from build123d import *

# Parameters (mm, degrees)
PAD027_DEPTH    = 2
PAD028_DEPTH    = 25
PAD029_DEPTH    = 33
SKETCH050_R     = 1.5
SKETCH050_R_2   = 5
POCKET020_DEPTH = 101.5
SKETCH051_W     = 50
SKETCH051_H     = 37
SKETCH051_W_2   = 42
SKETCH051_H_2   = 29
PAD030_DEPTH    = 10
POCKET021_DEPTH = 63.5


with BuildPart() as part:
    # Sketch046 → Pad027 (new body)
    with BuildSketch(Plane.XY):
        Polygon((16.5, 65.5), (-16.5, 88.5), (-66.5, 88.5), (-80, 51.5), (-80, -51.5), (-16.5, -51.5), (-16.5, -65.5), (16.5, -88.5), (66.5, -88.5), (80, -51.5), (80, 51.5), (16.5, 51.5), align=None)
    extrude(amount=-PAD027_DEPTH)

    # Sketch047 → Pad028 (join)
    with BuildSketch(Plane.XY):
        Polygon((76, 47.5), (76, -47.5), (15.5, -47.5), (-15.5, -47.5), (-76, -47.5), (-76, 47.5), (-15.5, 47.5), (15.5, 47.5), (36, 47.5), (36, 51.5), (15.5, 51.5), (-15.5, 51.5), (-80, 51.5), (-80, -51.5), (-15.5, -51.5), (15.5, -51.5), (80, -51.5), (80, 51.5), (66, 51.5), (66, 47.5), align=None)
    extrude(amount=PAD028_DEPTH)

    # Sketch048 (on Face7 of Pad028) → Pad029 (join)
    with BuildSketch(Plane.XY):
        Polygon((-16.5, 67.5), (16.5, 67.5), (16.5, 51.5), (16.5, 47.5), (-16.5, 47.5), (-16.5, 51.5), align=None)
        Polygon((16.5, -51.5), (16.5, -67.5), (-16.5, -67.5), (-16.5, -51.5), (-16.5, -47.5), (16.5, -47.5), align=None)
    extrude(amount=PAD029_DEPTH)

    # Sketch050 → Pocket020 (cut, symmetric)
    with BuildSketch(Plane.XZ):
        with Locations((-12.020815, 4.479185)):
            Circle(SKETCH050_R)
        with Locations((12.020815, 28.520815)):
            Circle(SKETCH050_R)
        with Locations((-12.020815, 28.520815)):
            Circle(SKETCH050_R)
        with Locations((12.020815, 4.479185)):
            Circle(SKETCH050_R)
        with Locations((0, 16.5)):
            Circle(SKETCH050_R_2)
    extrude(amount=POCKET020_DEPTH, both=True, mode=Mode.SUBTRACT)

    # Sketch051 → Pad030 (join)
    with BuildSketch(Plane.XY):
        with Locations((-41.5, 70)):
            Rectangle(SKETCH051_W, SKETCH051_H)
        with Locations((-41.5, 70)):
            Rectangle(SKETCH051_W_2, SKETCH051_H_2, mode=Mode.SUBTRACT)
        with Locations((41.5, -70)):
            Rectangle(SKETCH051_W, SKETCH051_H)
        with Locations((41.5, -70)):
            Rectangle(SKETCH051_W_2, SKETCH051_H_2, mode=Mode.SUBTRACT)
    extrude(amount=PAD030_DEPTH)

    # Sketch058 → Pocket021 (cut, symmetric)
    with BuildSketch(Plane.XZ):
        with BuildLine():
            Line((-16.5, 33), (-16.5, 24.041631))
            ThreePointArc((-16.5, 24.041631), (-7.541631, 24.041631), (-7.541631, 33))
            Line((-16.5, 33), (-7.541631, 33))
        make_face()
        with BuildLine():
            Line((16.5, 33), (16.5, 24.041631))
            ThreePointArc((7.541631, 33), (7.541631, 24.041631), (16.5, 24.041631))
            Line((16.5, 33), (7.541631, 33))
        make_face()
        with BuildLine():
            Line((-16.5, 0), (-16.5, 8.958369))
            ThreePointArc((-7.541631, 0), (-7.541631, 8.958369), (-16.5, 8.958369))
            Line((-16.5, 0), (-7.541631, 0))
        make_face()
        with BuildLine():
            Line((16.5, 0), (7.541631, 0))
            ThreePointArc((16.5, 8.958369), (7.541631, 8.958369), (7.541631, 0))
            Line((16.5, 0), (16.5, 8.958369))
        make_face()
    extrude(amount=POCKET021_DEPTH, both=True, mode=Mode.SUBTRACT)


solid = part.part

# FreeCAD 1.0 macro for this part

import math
import FreeCAD as App
import Part
import Sketcher

V = App.Vector


def add_polygon(sketch, points):
    """Adds a closed chain of lines whose ends are joined by coincident constraints."""
    first, n = sketch.GeometryCount, len(points)
    for a, b in zip(points, points[1:] + points[:1]):
        sketch.addGeometry(Part.LineSegment(App.Vector(*a, 0), App.Vector(*b, 0)), False)
    for i in range(n):
        sketch.addConstraint(Sketcher.Constraint("Coincident", first + i, 2, first + (i + 1) % n, 1))

doc = App.newDocument("Part")
body = doc.addObject("PartDesign::Body", "Body")

sketch1 = doc.addObject("Sketcher::SketchObject", "Sketch")
body.addObject(sketch1)
sketch1.AttachmentSupport = (doc.XY_Plane, [""])
sketch1.MapMode = "FlatFace"
add_polygon(sketch1, [(16, 66), (-16, 88), (-66, 88), (-80, 52), (-80, -52), (-16, -52), (-16, -66), (16, -88), (66, -88), (80, -52), (80, 52), (16, 52)])
sketch1.addConstraint([
    Sketcher.Constraint("Horizontal", 1),
    Sketcher.Constraint("Vertical", 3),
    Sketcher.Constraint("Horizontal", 4),
    Sketcher.Constraint("Vertical", 5),
    Sketcher.Constraint("Horizontal", 7),
    Sketcher.Constraint("Vertical", 9),
    Sketcher.Constraint("Horizontal", 10),
    Sketcher.Constraint("Vertical", 11),
    Sketcher.Constraint("Symmetric", 0, 2, 6, 2, -1, 1),
    Sketcher.Constraint("Symmetric", 2, 2, 8, 2, -1, 1),
    Sketcher.Constraint("Symmetric", 4, 2, 10, 2, -1, 1),
    Sketcher.Constraint("Parallel", 0, 6),
    Sketcher.Constraint("Parallel", 2, 8),
    Sketcher.Constraint("Horizontal", 4, 2, 8, 2),
    Sketcher.Constraint("Vertical", 0, 2, 4, 2),
    Sketcher.Constraint("DistanceX", 1, 2, 1, 1, 50.0),
    Sketcher.Constraint("DistanceY", 3, 2, 3, 1, 103.0),
    Sketcher.Constraint("DistanceY", 5, 2, 5, 1, 14.0),
    Sketcher.Constraint("DistanceX", 4, 1, 4, 2, 63.5),
    Sketcher.Constraint("DistanceX", 2, 2, -1, 1, 80.0),
    Sketcher.Constraint("DistanceY", 2, 2, 1, 2, 37.0),
])
pad1 = doc.addObject("PartDesign::Pad", "Pad")
body.addObject(pad1)
pad1.Profile = sketch1
pad1.Length = 2
pad1.Reversed = True

sketch2 = doc.addObject("Sketcher::SketchObject", "Sketch001")
body.addObject(sketch2)
sketch2.AttachmentSupport = (doc.XY_Plane, [""])
sketch2.MapMode = "FlatFace"
add_polygon(sketch2, [(76, 47.5), (76, -47.5), (-76, -47.5), (-76, 47.5), (36, 47.5), (36, 51.5), (-80, 51.5), (-80, -51.5), (80, -51.5), (80, 51.5), (66, 51.5), (66, 47.5)])
sketch2.addConstraint([
    Sketcher.Constraint("Vertical", 0),
    Sketcher.Constraint("Horizontal", 1),
    Sketcher.Constraint("Vertical", 2),
    Sketcher.Constraint("Horizontal", 3),
    Sketcher.Constraint("Vertical", 4),
    Sketcher.Constraint("Horizontal", 5),
    Sketcher.Constraint("Vertical", 6),
    Sketcher.Constraint("Horizontal", 7),
    Sketcher.Constraint("Vertical", 8),
    Sketcher.Constraint("Horizontal", 9),
    Sketcher.Constraint("Vertical", 10),
    Sketcher.Constraint("Horizontal", 11),
    Sketcher.Constraint("Symmetric", 0, 2, 2, 2, -1, 1),
    Sketcher.Constraint("Symmetric", 5, 2, 7, 2, -1, 1),
    Sketcher.Constraint("Horizontal", 5, 2, 8, 2),
    Sketcher.Constraint("Horizontal", 3, 2, 10, 2),
    Sketcher.Constraint("DistanceX", 1, 2, 1, 1, 152.0),
    Sketcher.Constraint("DistanceX", 3, 1, 3, 2, 112.0),
    Sketcher.Constraint("DistanceX", 5, 2, 5, 1, 116.0),
    Sketcher.Constraint("DistanceX", 9, 2, 9, 1, 14.0),
    Sketcher.Constraint("DistanceY", 0, 2, 0, 1, 95.0),
    Sketcher.Constraint("DistanceY", 4, 1, 4, 2, 4.0),
])
pad2 = doc.addObject("PartDesign::Pad", "Pad001")
body.addObject(pad2)
pad2.Profile = sketch2
pad2.Length = 25

sketch3 = doc.addObject("Sketcher::SketchObject", "Sketch002")
body.addObject(sketch3)
sketch3.AttachmentSupport = (doc.XY_Plane, [""])
sketch3.MapMode = "FlatFace"
add_polygon(sketch3, [(16, 68), (-16, 68), (-16, 48), (16, 48)])
add_polygon(sketch3, [(16, -68), (16, -48), (-16, -48), (-16, -68)])
sketch3.addConstraint([
    Sketcher.Constraint("Horizontal", 0),
    Sketcher.Constraint("Vertical", 1),
    Sketcher.Constraint("Horizontal", 2),
    Sketcher.Constraint("Vertical", 3),
    Sketcher.Constraint("Vertical", 4),
    Sketcher.Constraint("Horizontal", 5),
    Sketcher.Constraint("Vertical", 6),
    Sketcher.Constraint("Horizontal", 7),
    Sketcher.Constraint("Symmetric", 1, 2, 4, 2, -1, 1),
    Sketcher.Constraint("Symmetric", 3, 2, 6, 2, -1, 1),
    Sketcher.Constraint("Vertical", 3, 2, 4, 2),
    Sketcher.Constraint("DistanceX", 0, 2, 0, 1, 33.0),
    Sketcher.Constraint("DistanceY", 1, 2, 1, 1, 20.0),
    Sketcher.Constraint("DistanceY", 4, 2, 2, 2, 95.0),
])
pad3 = doc.addObject("PartDesign::Pad", "Pad002")
body.addObject(pad3)
pad3.Profile = sketch3
pad3.Length = 33

sketch4 = doc.addObject("Sketcher::SketchObject", "Sketch003")
body.addObject(sketch4)
sketch4.AttachmentSupport = (doc.XZ_Plane, [""])
sketch4.MapMode = "FlatFace"
sketch4.addGeometry([
    Part.Circle(V(-12, 4.5, 0), V(0, 0, 1), 1.5),
    Part.Circle(V(12, 28.5, 0), V(0, 0, 1), 1.5),
    Part.Circle(V(-12, 28.5, 0), V(0, 0, 1), 1.5),
    Part.Circle(V(12, 4.5, 0), V(0, 0, 1), 1.5),
    Part.Circle(V(0, 16.5, 0), V(0, 0, 1), 5),
], False)
sketch4.addConstraint([
    Sketcher.Constraint("Equal", 0, 1),
    Sketcher.Constraint("Equal", 1, 2),
    Sketcher.Constraint("Equal", 2, 3),
    Sketcher.Constraint("Symmetric", 1, 3, 2, 3, -2),
    Sketcher.Constraint("Symmetric", 0, 3, 3, 3, -2),
    Sketcher.Constraint("PointOnObject", 4, 3, -2),
    Sketcher.Constraint("Vertical", 0, 3, 2, 3),
    Sketcher.Constraint("Diameter", 0, 3.0),
    Sketcher.Constraint("Diameter", 4, 10.0),
    Sketcher.Constraint("DistanceY", -1, 1, 4, 3, 16.5),
    Sketcher.Constraint("DistanceX", 0, 3, 1, 3, 24.04163),
    Sketcher.Constraint("DistanceY", 0, 3, 1, 3, 24.04163),
    Sketcher.Constraint("DistanceY", -1, 1, 0, 3, 4.479185),
])
pocket1 = doc.addObject("PartDesign::Pocket", "Pocket")
body.addObject(pocket1)
pocket1.Profile = sketch4
pocket1.Length = 203
pocket1.Midplane = True

sketch5 = doc.addObject("Sketcher::SketchObject", "Sketch004")
body.addObject(sketch5)
sketch5.AttachmentSupport = (doc.XY_Plane, [""])
sketch5.MapMode = "FlatFace"
add_polygon(sketch5, [(-66, 88), (-66, 52), (-16, 52), (-16, 88)])
add_polygon(sketch5, [(-20, 56), (-62, 56), (-62, 84), (-20, 84)])
add_polygon(sketch5, [(16, -52), (16, -88), (66, -88), (66, -52)])
add_polygon(sketch5, [(62, -84), (20, -84), (20, -56), (62, -56)])
sketch5.addConstraint([
    Sketcher.Constraint("Vertical", 0),
    Sketcher.Constraint("Horizontal", 1),
    Sketcher.Constraint("Vertical", 2),
    Sketcher.Constraint("Horizontal", 3),
    Sketcher.Constraint("Horizontal", 4),
    Sketcher.Constraint("Vertical", 5),
    Sketcher.Constraint("Horizontal", 6),
    Sketcher.Constraint("Vertical", 7),
    Sketcher.Constraint("Vertical", 8),
    Sketcher.Constraint("Horizontal", 9),
    Sketcher.Constraint("Vertical", 10),
    Sketcher.Constraint("Horizontal", 11),
    Sketcher.Constraint("Horizontal", 12),
    Sketcher.Constraint("Vertical", 13),
    Sketcher.Constraint("Horizontal", 14),
    Sketcher.Constraint("Vertical", 15),
    Sketcher.Constraint("Symmetric", 2, 2, 8, 2, -1, 1),
    Sketcher.Constraint("Symmetric", 0, 2, 10, 2, -1, 1),
    Sketcher.Constraint("Symmetric", 6, 2, 12, 2, -1, 1),
    Sketcher.Constraint("Symmetric", 4, 2, 14, 2, -1, 1),
    Sketcher.Constraint("DistanceX", 1, 1, 1, 2, 50.0),
    Sketcher.Constraint("DistanceX", 4, 2, 4, 1, 42.0),
    Sketcher.Constraint("DistanceY", 0, 2, 0, 1, 37.0),
    Sketcher.Constraint("DistanceY", 5, 1, 5, 2, 29.0),
    Sketcher.Constraint("DistanceX", 0, 2, 4, 2, 4.0),
    Sketcher.Constraint("DistanceY", 0, 2, 4, 2, 4.0),
    Sketcher.Constraint("DistanceX", 1, 2, 8, 2, 33.0),
    Sketcher.Constraint("DistanceY", 8, 2, 1, 2, 140.0),
])
pad4 = doc.addObject("PartDesign::Pad", "Pad003")
body.addObject(pad4)
pad4.Profile = sketch5
pad4.Length = 10

sketch6 = doc.addObject("Sketcher::SketchObject", "Sketch005")
body.addObject(sketch6)
sketch6.AttachmentSupport = (doc.XZ_Plane, [""])
sketch6.MapMode = "FlatFace"
sketch6.addGeometry([
    Part.LineSegment(V(-16, 33, 0), V(-16, 24, 0)),
    Part.ArcOfCircle(Part.Circle(V(-12, 29, 0), V(0, 0, 1), 6), math.radians(-135), math.radians(45)),
    Part.LineSegment(V(-8, 33, 0), V(-16, 33, 0)),
    Part.LineSegment(V(16, 24, 0), V(16, 33, 0)),
    Part.LineSegment(V(16, 33, 0), V(8, 33, 0)),
    Part.ArcOfCircle(Part.Circle(V(12, 29, 0), V(0, 0, 1), 6), math.radians(135), math.radians(315)),
    Part.LineSegment(V(-16, 9, 0), V(-16, 0, 0)),
    Part.LineSegment(V(-16, 0, 0), V(-8, 0, 0)),
    Part.ArcOfCircle(Part.Circle(V(-12, 4, 0), V(0, 0, 1), 6), math.radians(-45), math.radians(135)),
    Part.LineSegment(V(8, 0, 0), V(16, 0, 0)),
    Part.LineSegment(V(16, 0, 0), V(16, 9, 0)),
    Part.ArcOfCircle(Part.Circle(V(12, 4, 0), V(0, 0, 1), 6), math.radians(45), math.radians(225)),
], False)
sketch6.addConstraint([
    Sketcher.Constraint("Coincident", 0, 2, 1, 1),
    Sketcher.Constraint("Coincident", 1, 2, 2, 1),
    Sketcher.Constraint("Coincident", 2, 2, 0, 1),
    Sketcher.Constraint("Coincident", 3, 2, 4, 1),
    Sketcher.Constraint("Coincident", 4, 2, 5, 1),
    Sketcher.Constraint("Coincident", 5, 2, 3, 1),
    Sketcher.Constraint("Coincident", 6, 2, 7, 1),
    Sketcher.Constraint("Coincident", 7, 2, 8, 1),
    Sketcher.Constraint("Coincident", 8, 2, 6, 1),
    Sketcher.Constraint("Coincident", 9, 2, 10, 1),
    Sketcher.Constraint("Coincident", 10, 2, 11, 1),
    Sketcher.Constraint("Coincident", 11, 2, 9, 1),
    Sketcher.Constraint("Vertical", 0),
    Sketcher.Constraint("Horizontal", 2),
    Sketcher.Constraint("Vertical", 3),
    Sketcher.Constraint("Horizontal", 4),
    Sketcher.Constraint("Vertical", 6),
    Sketcher.Constraint("Horizontal", 7),
    Sketcher.Constraint("Horizontal", 9),
    Sketcher.Constraint("Vertical", 10),
    Sketcher.Constraint("Equal", 1, 5),
    Sketcher.Constraint("Equal", 5, 8),
    Sketcher.Constraint("Equal", 8, 11),
    Sketcher.Constraint("Symmetric", 6, 2, 9, 2, -1, 1),
    Sketcher.Constraint("Symmetric", 1, 3, 5, 3, -2),
    Sketcher.Constraint("Symmetric", 8, 3, 11, 3, -2),
    Sketcher.Constraint("Symmetric", 2, 2, 3, 2, -2),
    Sketcher.Constraint("PointOnObject", 6, 2, -1),
    Sketcher.Constraint("Vertical", 1, 3, 8, 3),
    Sketcher.Constraint("Vertical", 2, 2, 6, 2),
    Sketcher.Constraint("Vertical", 1, 2, 7, 2),
    Sketcher.Constraint("Equal", 9, 0),
    Sketcher.Constraint("DistanceY", -1, 1, 1, 2, 33.0),
    Sketcher.Constraint("DistanceX", 2, 2, 3, 2, 33.0),
    Sketcher.Constraint("Radius", 1, 6.334523),
    Sketcher.Constraint("DistanceX", 1, 3, 5, 3, 24.041631),
])
pocket2 = doc.addObject("PartDesign::Pocket", "Pocket001")
body.addObject(pocket2)
pocket2.Profile = sketch6
pocket2.Length = 127
pocket2.Midplane = True

doc.recompute()
